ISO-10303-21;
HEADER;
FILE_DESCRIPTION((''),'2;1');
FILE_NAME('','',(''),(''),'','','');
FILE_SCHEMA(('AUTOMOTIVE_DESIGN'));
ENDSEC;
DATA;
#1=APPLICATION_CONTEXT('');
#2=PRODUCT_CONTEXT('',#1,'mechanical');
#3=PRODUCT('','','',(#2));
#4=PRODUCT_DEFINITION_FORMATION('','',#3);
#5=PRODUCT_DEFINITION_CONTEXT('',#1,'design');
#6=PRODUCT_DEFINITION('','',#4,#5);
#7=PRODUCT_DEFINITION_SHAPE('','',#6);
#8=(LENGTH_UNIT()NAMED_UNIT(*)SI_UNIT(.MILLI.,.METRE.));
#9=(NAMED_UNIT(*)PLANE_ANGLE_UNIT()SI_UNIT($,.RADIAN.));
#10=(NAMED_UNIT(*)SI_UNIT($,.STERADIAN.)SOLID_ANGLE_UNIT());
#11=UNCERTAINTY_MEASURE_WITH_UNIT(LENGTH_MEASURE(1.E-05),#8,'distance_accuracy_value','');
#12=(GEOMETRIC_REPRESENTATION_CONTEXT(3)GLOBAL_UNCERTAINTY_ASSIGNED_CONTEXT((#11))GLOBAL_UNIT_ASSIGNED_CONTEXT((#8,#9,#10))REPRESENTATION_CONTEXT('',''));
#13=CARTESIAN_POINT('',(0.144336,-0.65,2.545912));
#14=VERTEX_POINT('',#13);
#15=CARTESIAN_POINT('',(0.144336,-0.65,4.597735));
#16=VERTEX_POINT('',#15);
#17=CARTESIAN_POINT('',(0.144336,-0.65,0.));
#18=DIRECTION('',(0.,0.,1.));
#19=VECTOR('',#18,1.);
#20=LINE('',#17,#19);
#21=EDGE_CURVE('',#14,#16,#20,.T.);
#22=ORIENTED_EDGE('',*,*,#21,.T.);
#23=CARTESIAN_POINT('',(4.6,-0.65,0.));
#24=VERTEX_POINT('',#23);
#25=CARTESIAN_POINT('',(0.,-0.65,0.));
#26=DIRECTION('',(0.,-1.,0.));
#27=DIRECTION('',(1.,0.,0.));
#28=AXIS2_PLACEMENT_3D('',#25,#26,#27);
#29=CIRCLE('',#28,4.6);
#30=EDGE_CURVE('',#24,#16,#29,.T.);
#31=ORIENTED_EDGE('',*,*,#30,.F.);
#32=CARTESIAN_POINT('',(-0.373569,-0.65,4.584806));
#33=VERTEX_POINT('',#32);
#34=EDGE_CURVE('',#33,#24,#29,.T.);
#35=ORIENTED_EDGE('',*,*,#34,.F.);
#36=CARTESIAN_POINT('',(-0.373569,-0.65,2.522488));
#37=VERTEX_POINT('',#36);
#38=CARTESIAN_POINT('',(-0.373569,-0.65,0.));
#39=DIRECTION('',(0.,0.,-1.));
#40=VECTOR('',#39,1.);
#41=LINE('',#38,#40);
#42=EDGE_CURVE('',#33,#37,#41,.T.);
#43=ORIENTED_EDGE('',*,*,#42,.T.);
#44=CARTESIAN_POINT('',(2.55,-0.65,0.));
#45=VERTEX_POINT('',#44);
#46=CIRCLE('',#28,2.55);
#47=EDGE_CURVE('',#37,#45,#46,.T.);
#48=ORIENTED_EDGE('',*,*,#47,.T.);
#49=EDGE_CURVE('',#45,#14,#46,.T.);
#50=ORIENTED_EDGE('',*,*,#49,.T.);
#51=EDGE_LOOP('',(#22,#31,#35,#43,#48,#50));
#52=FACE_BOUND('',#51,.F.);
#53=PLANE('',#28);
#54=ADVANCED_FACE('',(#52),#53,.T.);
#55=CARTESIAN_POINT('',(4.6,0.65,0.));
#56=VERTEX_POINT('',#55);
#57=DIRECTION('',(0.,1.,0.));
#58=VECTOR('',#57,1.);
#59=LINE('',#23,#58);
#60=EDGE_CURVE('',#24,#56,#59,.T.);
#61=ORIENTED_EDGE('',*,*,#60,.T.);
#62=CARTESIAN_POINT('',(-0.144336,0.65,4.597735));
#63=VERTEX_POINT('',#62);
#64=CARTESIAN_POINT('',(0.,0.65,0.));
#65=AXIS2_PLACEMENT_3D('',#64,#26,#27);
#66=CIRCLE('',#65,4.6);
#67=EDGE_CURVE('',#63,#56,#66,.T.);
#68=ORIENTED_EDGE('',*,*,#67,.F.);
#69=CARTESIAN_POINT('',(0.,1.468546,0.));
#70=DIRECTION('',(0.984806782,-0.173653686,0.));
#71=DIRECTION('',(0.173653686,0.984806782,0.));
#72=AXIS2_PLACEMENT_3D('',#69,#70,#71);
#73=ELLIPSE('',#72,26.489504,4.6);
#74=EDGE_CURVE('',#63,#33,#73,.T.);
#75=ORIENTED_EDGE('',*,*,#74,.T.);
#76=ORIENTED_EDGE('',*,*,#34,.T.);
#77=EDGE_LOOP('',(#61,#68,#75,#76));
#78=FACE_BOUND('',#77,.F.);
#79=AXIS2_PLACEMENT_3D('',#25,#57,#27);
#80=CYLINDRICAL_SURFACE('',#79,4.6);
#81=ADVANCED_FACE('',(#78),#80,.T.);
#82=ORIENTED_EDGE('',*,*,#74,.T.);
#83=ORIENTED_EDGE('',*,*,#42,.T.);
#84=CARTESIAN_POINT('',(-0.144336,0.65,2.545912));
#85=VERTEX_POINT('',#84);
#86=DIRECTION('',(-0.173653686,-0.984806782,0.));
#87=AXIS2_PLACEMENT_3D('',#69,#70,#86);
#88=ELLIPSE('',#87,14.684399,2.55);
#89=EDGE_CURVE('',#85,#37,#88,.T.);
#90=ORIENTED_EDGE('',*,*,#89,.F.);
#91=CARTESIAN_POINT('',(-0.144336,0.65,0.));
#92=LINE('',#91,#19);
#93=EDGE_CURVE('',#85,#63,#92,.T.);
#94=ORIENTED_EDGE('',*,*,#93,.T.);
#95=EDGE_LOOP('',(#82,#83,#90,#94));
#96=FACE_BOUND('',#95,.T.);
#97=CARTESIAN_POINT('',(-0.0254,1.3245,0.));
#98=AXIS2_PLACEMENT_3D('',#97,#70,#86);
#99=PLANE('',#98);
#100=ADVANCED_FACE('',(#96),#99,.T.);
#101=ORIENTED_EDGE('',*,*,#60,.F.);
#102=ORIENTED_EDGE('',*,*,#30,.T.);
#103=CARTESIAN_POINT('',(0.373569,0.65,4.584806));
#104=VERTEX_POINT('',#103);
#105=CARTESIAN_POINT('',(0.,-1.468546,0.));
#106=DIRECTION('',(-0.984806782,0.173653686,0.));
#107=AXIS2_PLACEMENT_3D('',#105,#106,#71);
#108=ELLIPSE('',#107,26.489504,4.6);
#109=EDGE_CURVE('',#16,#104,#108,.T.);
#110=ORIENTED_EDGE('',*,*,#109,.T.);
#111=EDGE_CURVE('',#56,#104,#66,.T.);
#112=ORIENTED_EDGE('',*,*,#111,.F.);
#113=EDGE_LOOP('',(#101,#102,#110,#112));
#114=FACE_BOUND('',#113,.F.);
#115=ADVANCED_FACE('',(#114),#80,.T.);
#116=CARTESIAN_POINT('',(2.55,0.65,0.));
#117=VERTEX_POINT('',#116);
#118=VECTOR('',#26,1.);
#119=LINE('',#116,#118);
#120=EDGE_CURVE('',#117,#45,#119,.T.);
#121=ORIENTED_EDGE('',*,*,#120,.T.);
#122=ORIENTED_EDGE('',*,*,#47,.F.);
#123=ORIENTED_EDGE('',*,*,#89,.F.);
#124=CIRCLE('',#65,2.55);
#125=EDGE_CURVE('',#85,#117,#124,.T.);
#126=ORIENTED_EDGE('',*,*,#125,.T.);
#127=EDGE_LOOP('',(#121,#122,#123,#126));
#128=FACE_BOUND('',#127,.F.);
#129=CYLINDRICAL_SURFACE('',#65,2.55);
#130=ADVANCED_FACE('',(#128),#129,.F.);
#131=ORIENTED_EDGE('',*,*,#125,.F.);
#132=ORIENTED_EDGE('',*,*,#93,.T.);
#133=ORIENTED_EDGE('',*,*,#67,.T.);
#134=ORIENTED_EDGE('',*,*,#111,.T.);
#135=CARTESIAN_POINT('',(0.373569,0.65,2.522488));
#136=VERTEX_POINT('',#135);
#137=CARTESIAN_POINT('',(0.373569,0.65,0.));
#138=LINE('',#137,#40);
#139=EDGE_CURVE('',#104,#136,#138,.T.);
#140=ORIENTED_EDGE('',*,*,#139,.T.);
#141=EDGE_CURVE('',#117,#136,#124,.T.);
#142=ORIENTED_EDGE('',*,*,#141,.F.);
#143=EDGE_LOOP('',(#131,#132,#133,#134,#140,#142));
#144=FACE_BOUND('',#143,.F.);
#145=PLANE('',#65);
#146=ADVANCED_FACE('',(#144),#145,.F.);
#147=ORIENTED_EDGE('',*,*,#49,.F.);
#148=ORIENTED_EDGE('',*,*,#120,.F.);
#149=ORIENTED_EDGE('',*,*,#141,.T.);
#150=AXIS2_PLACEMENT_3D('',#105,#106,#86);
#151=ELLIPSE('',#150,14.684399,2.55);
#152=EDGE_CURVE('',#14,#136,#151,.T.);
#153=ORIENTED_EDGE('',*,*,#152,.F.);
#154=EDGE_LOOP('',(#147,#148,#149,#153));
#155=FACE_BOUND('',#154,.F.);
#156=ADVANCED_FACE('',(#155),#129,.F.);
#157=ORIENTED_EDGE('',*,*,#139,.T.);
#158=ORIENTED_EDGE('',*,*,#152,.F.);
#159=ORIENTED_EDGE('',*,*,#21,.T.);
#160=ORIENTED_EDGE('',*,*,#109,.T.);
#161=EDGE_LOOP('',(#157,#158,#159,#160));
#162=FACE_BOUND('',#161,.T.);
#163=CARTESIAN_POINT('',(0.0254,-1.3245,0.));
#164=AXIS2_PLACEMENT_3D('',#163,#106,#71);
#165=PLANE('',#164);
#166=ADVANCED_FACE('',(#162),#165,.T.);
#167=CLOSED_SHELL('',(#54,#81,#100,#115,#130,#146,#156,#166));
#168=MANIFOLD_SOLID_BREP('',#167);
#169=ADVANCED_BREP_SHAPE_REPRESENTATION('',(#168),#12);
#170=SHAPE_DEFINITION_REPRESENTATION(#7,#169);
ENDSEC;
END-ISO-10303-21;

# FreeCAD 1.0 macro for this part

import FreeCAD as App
import Part
import Sketcher

V = App.Vector
Q = App.Units.Quantity

doc = App.newDocument("Part")
body = doc.addObject("PartDesign::Body", "Body")

sketch1 = body.newObject("Sketcher::SketchObject", "Sketch")
sketch1.AttachmentSupport = (doc.getObject("XY_Plane"), [""])
sketch1.MapMode = "FlatFace"
sketch1.addGeometry(Part.LineSegment(V(2.5, 0.7, 0), V(2.5, -0.7, 0)), False)
sketch1.addGeometry(Part.LineSegment(V(2.5, -0.7, 0), V(4.6, -0.7, 0)), False)
sketch1.addGeometry(Part.LineSegment(V(4.6, -0.7, 0), V(4.6, 0.7, 0)), False)
sketch1.addGeometry(Part.LineSegment(V(4.6, 0.7, 0), V(2.5, 0.7, 0)), False)
sketch1.addConstraint(Sketcher.Constraint("Coincident", 0, 2, 1, 1))
sketch1.addConstraint(Sketcher.Constraint("Coincident", 1, 2, 2, 1))
sketch1.addConstraint(Sketcher.Constraint("Coincident", 2, 2, 3, 1))
sketch1.addConstraint(Sketcher.Constraint("Coincident", 3, 2, 0, 1))
sketch1.addConstraint(Sketcher.Constraint("Vertical", 0))
sketch1.addConstraint(Sketcher.Constraint("Horizontal", 1))
sketch1.addConstraint(Sketcher.Constraint("Vertical", 2))
sketch1.addConstraint(Sketcher.Constraint("Horizontal", 3))
sketch1.addConstraint(Sketcher.Constraint("DistanceY", 0, 2, 0, 1, 1.3))
sketch1.addConstraint(Sketcher.Constraint("DistanceX", 1, 1, 1, 2, 2.05))
sketch1.addConstraint(Sketcher.Constraint("DistanceX", -1, 1, 1, 2, 4.6))
sketch1.addConstraint(Sketcher.Constraint("DistanceY", 0, 2, -1, 1, 0.65))
revolution = body.newObject("PartDesign::Revolution", "Revolution")
revolution.Profile = sketch1
revolution.ReferenceAxis = (sketch1, ["V_Axis"])
revolution.Angle = 360

sketch2 = body.newObject("Sketcher::SketchObject", "Sketch001")
sketch2.AttachmentSupport = (doc.getObject("XY_Plane"), [""])
sketch2.MapMode = "FlatFace"
sketch2.addGeometry(Part.LineSegment(V(0, 1.3, 0), V(-0.5, -1.2, 0)), False)
sketch2.addGeometry(Part.LineSegment(V(-0.5, -1.2, 0), V(0, -1.3, 0)), False)
sketch2.addGeometry(Part.LineSegment(V(0, -1.3, 0), V(0.5, 1.2, 0)), False)
sketch2.addGeometry(Part.LineSegment(V(0.5, 1.2, 0), V(0, 1.3, 0)), False)
sketch2.addConstraint(Sketcher.Constraint("Coincident", 0, 2, 1, 1))
sketch2.addConstraint(Sketcher.Constraint("Coincident", 1, 2, 2, 1))
sketch2.addConstraint(Sketcher.Constraint("Coincident", 2, 2, 3, 1))
sketch2.addConstraint(Sketcher.Constraint("Coincident", 3, 2, 0, 1))
sketch2.addConstraint(Sketcher.Constraint("Symmetric", 0, 2, 2, 2, -1, 1))
sketch2.addConstraint(Sketcher.Constraint("Symmetric", 1, 2, 3, 2, -1, 1))
sketch2.addConstraint(Sketcher.Constraint("Perpendicular", 0, 1))
sketch2.addConstraint(Sketcher.Constraint("Angle", 0, Q("-100.0003 deg")))
sketch2.addConstraint(Sketcher.Constraint("Distance", 0, 2.6))
sketch2.addConstraint(Sketcher.Constraint("Distance", 1, 0.51))
pocket1 = body.newObject("PartDesign::Pocket", "Pocket")
pocket1.Profile = sketch2
pocket1.Length = 5.6
pocket1.Reversed = True

doc.recompute()
